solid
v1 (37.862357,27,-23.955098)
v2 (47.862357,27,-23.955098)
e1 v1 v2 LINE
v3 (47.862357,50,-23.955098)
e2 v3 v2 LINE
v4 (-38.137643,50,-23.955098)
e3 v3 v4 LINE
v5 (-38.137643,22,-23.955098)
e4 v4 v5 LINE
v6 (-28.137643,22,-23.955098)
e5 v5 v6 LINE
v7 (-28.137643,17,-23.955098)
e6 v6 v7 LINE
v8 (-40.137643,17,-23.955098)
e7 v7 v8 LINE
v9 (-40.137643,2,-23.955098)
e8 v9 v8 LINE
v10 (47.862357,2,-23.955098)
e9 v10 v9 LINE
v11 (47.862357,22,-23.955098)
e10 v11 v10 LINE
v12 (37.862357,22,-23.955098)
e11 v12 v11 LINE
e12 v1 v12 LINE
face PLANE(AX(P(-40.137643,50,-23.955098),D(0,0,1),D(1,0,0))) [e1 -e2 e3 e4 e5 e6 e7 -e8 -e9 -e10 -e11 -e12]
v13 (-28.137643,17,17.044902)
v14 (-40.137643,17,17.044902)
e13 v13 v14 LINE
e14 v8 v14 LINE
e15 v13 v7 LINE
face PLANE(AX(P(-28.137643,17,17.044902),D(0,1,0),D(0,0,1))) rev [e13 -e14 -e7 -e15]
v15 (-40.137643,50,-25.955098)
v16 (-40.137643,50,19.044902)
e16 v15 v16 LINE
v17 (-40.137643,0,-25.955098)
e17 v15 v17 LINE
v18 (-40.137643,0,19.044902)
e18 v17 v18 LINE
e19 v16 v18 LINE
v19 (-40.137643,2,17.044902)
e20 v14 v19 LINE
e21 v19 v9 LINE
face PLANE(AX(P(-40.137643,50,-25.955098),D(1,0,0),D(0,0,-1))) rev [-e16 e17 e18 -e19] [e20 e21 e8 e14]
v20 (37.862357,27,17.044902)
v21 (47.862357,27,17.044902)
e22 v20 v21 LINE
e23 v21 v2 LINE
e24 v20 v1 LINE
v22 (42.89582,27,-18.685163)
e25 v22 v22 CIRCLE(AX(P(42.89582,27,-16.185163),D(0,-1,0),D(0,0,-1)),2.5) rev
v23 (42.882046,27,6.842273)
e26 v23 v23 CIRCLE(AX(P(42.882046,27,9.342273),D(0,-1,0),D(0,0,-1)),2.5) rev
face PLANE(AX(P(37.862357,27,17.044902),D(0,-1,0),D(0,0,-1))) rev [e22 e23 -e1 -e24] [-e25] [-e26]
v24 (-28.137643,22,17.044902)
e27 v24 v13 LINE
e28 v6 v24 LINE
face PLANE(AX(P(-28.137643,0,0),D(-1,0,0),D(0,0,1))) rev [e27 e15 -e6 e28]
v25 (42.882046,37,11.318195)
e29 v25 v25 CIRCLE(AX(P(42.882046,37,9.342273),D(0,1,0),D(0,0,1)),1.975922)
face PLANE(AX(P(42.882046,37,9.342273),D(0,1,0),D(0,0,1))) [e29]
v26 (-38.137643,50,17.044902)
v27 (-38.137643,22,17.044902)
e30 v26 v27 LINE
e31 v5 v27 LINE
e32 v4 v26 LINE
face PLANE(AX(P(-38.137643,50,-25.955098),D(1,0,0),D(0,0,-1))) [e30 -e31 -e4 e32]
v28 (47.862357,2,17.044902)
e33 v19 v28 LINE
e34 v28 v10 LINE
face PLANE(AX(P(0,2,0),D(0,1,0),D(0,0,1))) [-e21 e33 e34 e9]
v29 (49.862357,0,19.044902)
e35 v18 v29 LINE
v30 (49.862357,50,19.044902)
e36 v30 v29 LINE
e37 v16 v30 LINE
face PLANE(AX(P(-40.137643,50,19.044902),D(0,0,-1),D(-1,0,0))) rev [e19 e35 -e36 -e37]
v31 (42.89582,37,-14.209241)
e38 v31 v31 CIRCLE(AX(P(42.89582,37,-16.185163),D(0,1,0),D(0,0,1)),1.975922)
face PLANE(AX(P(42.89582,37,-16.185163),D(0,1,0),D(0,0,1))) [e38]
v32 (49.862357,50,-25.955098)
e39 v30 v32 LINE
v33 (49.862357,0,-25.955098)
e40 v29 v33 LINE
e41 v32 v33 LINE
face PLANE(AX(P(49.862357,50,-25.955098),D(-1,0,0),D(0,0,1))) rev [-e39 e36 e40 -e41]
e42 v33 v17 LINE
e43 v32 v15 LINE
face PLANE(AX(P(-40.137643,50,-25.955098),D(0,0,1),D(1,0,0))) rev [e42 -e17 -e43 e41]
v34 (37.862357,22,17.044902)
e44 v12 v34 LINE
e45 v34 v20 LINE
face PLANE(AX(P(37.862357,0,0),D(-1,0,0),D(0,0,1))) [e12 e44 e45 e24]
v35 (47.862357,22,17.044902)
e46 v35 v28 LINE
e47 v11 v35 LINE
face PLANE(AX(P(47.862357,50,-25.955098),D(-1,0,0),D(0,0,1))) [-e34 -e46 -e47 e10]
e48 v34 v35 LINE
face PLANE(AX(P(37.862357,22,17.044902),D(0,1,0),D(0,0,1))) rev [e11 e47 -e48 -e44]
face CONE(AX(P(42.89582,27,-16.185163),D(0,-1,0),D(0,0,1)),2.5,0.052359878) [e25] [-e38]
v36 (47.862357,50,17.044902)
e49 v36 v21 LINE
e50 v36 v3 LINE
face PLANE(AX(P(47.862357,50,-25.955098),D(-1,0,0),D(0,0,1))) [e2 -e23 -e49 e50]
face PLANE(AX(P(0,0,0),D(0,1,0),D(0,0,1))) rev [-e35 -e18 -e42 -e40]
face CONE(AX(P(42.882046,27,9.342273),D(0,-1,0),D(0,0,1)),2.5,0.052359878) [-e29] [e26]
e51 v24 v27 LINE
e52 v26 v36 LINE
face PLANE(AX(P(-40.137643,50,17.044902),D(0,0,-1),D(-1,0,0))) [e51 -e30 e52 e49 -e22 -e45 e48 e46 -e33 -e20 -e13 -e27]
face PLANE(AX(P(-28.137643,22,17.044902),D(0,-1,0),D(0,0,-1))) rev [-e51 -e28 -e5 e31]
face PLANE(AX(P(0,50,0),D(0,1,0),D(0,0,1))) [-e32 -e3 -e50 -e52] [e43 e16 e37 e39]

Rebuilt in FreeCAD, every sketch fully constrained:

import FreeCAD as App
import Part
import Sketcher


def faces_at(feature, points):
    """Names of the faces that lie closest to the given points."""
    faces = feature.Shape.Faces
    near = lambda p: min(range(len(faces)), key=lambda i: faces[i].distToShape(Part.Vertex(*p))[0])
    return sorted({f"Face{near(p) + 1}" for p in points})


def add_polygon(sketch, points):
    """Adds a closed chain of lines whose ends are joined by coincident constraints."""
    first, n = sketch.GeometryCount, len(points)
    for a, b in zip(points, points[1:] + points[:1]):
        sketch.addGeometry(Part.LineSegment(App.Vector(*a, 0), App.Vector(*b, 0)), False)
    for i in range(n):
        sketch.addConstraint(Sketcher.Constraint("Coincident", first + i, 2, first + (i + 1) % n, 1))

doc = App.newDocument("Part")
body = doc.addObject("PartDesign::Body", "Body")

# Sketch on XZ plane
sketch1 = doc.addObject("Sketcher::SketchObject", "Sketch")
body.addObject(sketch1)
sketch1.AttachmentSupport = (doc.XZ_Plane, [""])
sketch1.MapMode = "FlatFace"
add_polygon(sketch1, [(-40.137643, -25.955098), (-40.137643, 19.044902), (49.862357, 19.044902), (49.862357, -25.955098)])  # lines 0-3
sketch1.addConstraint(Sketcher.Constraint("Vertical", 0))
sketch1.addConstraint(Sketcher.Constraint("Horizontal", 1))
sketch1.addConstraint(Sketcher.Constraint("Vertical", 2))
sketch1.addConstraint(Sketcher.Constraint("Horizontal", 3))
sketch1.addConstraint(Sketcher.Constraint("DistanceX", 1, 1, 1, 2, 90.0))
sketch1.addConstraint(Sketcher.Constraint("DistanceY", 0, 1, 0, 2, 45.0))
sketch1.addConstraint(Sketcher.Constraint("DistanceX", 0, 2, -1, 1, 40.137643))
sketch1.addConstraint(Sketcher.Constraint("DistanceY", -1, 1, 0, 2, 19.044902))
pad1 = doc.addObject("PartDesign::Pad", "Pad")
body.addObject(pad1)
pad1.Profile = sketch1
pad1.Length = 50
pad1.Reversed = True
doc.recompute()

thickness = doc.addObject("PartDesign::Thickness", "Thickness")
body.addObject(thickness)
thickness.Base = (pad1, faces_at(pad1, [(4.862, 50, -3.455)]))
thickness.Value = 2
thickness.Reversed = True
thickness.Join = "Intersection"

# Sketch on YZ plane
sketch2 = doc.addObject("Sketcher::SketchObject", "Sketch001")
body.addObject(sketch2)
sketch2.AttachmentSupport = (doc.YZ_Plane, [""])
sketch2.MapMode = "FlatFace"
sketch2.AttachmentOffset = App.Placement(App.Vector(0, 0, -38.137643), App.Rotation())
add_polygon(sketch2, [(22, 17.044902), (17, 17.044902), (17, -24.36166), (22, -24.36166)])  # lines 0-3
sketch2.addConstraint(Sketcher.Constraint("Horizontal", 0))
sketch2.addConstraint(Sketcher.Constraint("Vertical", 1))
sketch2.addConstraint(Sketcher.Constraint("Horizontal", 2))
sketch2.addConstraint(Sketcher.Constraint("Vertical", 3))
sketch2.addConstraint(Sketcher.Constraint("DistanceX", 0, 2, 0, 1, 5.0))
sketch2.addConstraint(Sketcher.Constraint("DistanceX", -1, 1, 0, 2, 17.0))
sketch2.addConstraint(Sketcher.Constraint("DistanceY", 1, 2, 1, 1, 41.406562))
sketch2.addConstraint(Sketcher.Constraint("DistanceY", 1, 2, -1, 1, 24.36166))
pad2 = doc.addObject("PartDesign::Pad", "Pad001")
body.addObject(pad2)
pad2.Profile = sketch2
pad2.Length = 10

# Sketch on YZ plane
sketch3 = doc.addObject("Sketcher::SketchObject", "Sketch002")
body.addObject(sketch3)
sketch3.AttachmentSupport = (doc.YZ_Plane, [""])
sketch3.MapMode = "FlatFace"
sketch3.AttachmentOffset = App.Placement(App.Vector(0, 0, 47.862357), App.Rotation())
add_polygon(sketch3, [(27, -23.955098), (22, -23.955098), (22, 17.044902), (27, 17.044902)])  # lines 0-3
sketch3.addConstraint(Sketcher.Constraint("Horizontal", 0))
sketch3.addConstraint(Sketcher.Constraint("Vertical", 1))
sketch3.addConstraint(Sketcher.Constraint("Horizontal", 2))
sketch3.addConstraint(Sketcher.Constraint("Vertical", 3))
sketch3.addConstraint(Sketcher.Constraint("DistanceX", 0, 2, 0, 1, 5.0))
sketch3.addConstraint(Sketcher.Constraint("DistanceY", 1, 1, 1, 2, 41.0))
sketch3.addConstraint(Sketcher.Constraint("DistanceX", -1, 1, 0, 2, 22.0))
sketch3.addConstraint(Sketcher.Constraint("DistanceY", 0, 2, -1, 1, 23.955098))
pad3 = doc.addObject("PartDesign::Pad", "Pad002")
body.addObject(pad3)
pad3.Profile = sketch3
pad3.Length = 10
pad3.Reversed = True

# Sketch on YZ plane
sketch4 = doc.addObject("Sketcher::SketchObject", "Sketch003")
body.addObject(sketch4)
sketch4.AttachmentSupport = (doc.YZ_Plane, [""])
sketch4.MapMode = "FlatFace"
sketch4.AttachmentOffset = App.Placement(App.Vector(0, 0, -38.137643), App.Rotation())
add_polygon(sketch4, [(17, 17.044902), (2, 17.044902), (2, -23.955098), (17, -23.955098)])  # lines 0-3
sketch4.addConstraint(Sketcher.Constraint("Horizontal", 0))
sketch4.addConstraint(Sketcher.Constraint("Vertical", 1))
sketch4.addConstraint(Sketcher.Constraint("Horizontal", 2))
sketch4.addConstraint(Sketcher.Constraint("Vertical", 3))
sketch4.addConstraint(Sketcher.Constraint("DistanceX", 0, 2, 0, 1, 15.0))
sketch4.addConstraint(Sketcher.Constraint("DistanceY", 1, 2, 1, 1, 41.0))
sketch4.addConstraint(Sketcher.Constraint("DistanceX", -1, 1, 0, 2, 2.0))
sketch4.addConstraint(Sketcher.Constraint("DistanceY", -1, 1, 0, 2, 17.044902))
pocket1 = doc.addObject("PartDesign::Pocket", "Pocket")
body.addObject(pocket1)
pocket1.Profile = sketch4
pocket1.Length = 3

# Sketch on XZ plane
sketch5 = doc.addObject("Sketcher::SketchObject", "Sketch004")
body.addObject(sketch5)
sketch5.AttachmentSupport = (doc.XZ_Plane, [""])
sketch5.MapMode = "FlatFace"
sketch5.AttachmentOffset = App.Placement(App.Vector(0, 0, -27), App.Rotation())
sketch5.addGeometry(Part.Circle(App.Vector(42.89582, -16.185163, 0), App.Vector(0, 0, 1), 2.5), False)
sketch5.addConstraint(Sketcher.Constraint("Diameter", 0, 5.0))
sketch5.addConstraint(Sketcher.Constraint("DistanceX", -1, 1, 0, 3, 42.89582))
sketch5.addConstraint(Sketcher.Constraint("DistanceY", 0, 3, -1, 1, 16.185163))
pad4 = doc.addObject("PartDesign::Pad", "Pad003")
body.addObject(pad4)
pad4.Profile = sketch5
pad4.Length = 10
pad4.Reversed = True
pad4.TaperAngle = -3

# Sketch on XZ plane
sketch6 = doc.addObject("Sketcher::SketchObject", "Sketch005")
body.addObject(sketch6)
sketch6.AttachmentSupport = (doc.XZ_Plane, [""])
sketch6.MapMode = "FlatFace"
sketch6.AttachmentOffset = App.Placement(App.Vector(0, 0, -27), App.Rotation())
sketch6.addGeometry(Part.Circle(App.Vector(42.882046, 9.342273, 0), App.Vector(0, 0, 1), 2.5), False)
sketch6.addConstraint(Sketcher.Constraint("Diameter", 0, 5.0))
sketch6.addConstraint(Sketcher.Constraint("DistanceX", -1, 1, 0, 3, 42.882046))
sketch6.addConstraint(Sketcher.Constraint("DistanceY", -1, 1, 0, 3, 9.342273))
pad5 = doc.addObject("PartDesign::Pad", "Pad004")
body.addObject(pad5)
pad5.Profile = sketch6
pad5.Length = 10
pad5.Reversed = True
pad5.TaperAngle = -3

doc.recompute()
